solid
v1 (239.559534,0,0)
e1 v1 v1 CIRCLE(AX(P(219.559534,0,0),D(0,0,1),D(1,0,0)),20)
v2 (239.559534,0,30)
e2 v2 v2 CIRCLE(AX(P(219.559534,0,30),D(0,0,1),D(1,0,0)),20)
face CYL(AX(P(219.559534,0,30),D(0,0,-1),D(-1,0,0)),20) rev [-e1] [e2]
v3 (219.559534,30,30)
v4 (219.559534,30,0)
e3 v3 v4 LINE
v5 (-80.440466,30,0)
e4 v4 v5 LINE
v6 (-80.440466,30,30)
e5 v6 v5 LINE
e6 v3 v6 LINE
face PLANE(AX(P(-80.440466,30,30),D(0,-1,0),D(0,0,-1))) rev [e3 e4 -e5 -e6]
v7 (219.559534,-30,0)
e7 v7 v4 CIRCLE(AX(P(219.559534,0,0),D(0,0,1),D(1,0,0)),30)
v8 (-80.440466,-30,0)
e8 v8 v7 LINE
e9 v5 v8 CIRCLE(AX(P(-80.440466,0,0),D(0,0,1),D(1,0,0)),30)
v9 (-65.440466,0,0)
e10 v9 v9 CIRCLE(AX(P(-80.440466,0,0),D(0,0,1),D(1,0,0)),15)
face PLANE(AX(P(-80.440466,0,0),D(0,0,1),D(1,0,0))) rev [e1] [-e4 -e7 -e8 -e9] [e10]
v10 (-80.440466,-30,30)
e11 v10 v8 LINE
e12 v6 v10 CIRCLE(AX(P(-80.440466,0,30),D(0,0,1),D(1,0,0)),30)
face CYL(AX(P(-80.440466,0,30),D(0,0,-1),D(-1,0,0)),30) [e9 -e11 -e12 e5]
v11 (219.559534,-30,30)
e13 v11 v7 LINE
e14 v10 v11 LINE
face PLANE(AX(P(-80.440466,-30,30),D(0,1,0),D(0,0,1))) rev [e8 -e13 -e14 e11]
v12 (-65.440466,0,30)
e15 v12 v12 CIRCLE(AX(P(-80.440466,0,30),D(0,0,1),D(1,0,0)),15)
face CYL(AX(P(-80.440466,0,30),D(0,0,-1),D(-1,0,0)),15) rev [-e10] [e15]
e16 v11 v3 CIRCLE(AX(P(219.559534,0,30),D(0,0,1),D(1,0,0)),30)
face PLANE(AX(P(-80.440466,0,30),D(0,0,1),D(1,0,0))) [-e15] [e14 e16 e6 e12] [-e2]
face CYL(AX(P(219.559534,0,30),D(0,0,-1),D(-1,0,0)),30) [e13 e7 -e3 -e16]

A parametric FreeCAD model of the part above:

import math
import FreeCAD as App
import Part
import Sketcher
from FreeCAD import Vector
Q = App.Units.Quantity

doc = App.newDocument("Part")
params = doc.addObject("Spreadsheet::Sheet", "Params")
for row, (alias, value) in enumerate([
    ("sketch1_diameter", "40 mm"),
    ("sketch1_diameter2", "30 mm"),
    ("sketch1_radius", "30 mm"),
    ("sketch1_width", "300 mm"),
    ("pad1_length", "30 mm"),
], start=1):
    params.set(f"A{row}", alias)
    params.set(f"B{row}", "=" + value)
    params.setAlias(f"B{row}", alias)

body = doc.addObject("PartDesign::Body", "Body")

sketch1 = body.newObject("Sketcher::SketchObject", "Sketch")
sketch1.AttachmentSupport = (doc.getObject("XY_Plane"), [""])
sketch1.MapMode = "FlatFace"
sketch1.addGeometry([
    Part.LineSegment(Vector(220, 30, 0), Vector(-80, 30, 0)),
    Part.ArcOfCircle(Part.Circle(Vector(-80, 0, 0), Vector(0, 0, 1), 30), math.radians(90), math.radians(270)),
    Part.LineSegment(Vector(-80, -30, 0), Vector(220, -30, 0)),
    Part.ArcOfCircle(Part.Circle(Vector(220, 0, 0), Vector(0, 0, 1), 30), math.radians(-90), math.radians(90)),
    Part.Circle(Vector(220, 0, 0), Vector(0, 0, 1), 20),
    Part.Circle(Vector(-80, 0, 0), Vector(0, 0, 1), 15),
], False)
sketch1.addConstraint([
    Sketcher.Constraint("Tangent", 0, 2, 1, 1),
    Sketcher.Constraint("Tangent", 1, 2, 2, 1),
    Sketcher.Constraint("Tangent", 2, 2, 3, 1),
    Sketcher.Constraint("Tangent", 3, 2, 0, 1),
    Sketcher.Constraint("Horizontal", 0),
    Sketcher.Constraint("Horizontal", 2),
    Sketcher.Constraint("Coincident", 4, 3, 3, 3),
    Sketcher.Constraint("Coincident", 5, 3, 1, 3),
    Sketcher.Constraint("PointOnObject", 1, 3, -1),
    Sketcher.Constraint("Diameter", 4, Q("40 mm")),
    Sketcher.Constraint("Diameter", 5, Q("30 mm")),
    Sketcher.Constraint("Radius", 1, Q("30 mm")),
    Sketcher.Constraint("DistanceX", 0, 2, 0, 1, Q("300 mm")),
    Sketcher.Constraint("DistanceX", 1, 3, -1, 1, Q("80.440466 mm")),
])
sketch1.setExpression("Constraints[9]", "Params.sketch1_diameter")
sketch1.setExpression("Constraints[10]", "Params.sketch1_diameter2")
sketch1.setExpression("Constraints[11]", "Params.sketch1_radius")
sketch1.setExpression("Constraints[12]", "Params.sketch1_width")
pad1 = body.newObject("PartDesign::Pad", "Pad")
pad1.Profile = sketch1
pad1.setExpression("Length", "Params.pad1_length")

doc.recompute()
